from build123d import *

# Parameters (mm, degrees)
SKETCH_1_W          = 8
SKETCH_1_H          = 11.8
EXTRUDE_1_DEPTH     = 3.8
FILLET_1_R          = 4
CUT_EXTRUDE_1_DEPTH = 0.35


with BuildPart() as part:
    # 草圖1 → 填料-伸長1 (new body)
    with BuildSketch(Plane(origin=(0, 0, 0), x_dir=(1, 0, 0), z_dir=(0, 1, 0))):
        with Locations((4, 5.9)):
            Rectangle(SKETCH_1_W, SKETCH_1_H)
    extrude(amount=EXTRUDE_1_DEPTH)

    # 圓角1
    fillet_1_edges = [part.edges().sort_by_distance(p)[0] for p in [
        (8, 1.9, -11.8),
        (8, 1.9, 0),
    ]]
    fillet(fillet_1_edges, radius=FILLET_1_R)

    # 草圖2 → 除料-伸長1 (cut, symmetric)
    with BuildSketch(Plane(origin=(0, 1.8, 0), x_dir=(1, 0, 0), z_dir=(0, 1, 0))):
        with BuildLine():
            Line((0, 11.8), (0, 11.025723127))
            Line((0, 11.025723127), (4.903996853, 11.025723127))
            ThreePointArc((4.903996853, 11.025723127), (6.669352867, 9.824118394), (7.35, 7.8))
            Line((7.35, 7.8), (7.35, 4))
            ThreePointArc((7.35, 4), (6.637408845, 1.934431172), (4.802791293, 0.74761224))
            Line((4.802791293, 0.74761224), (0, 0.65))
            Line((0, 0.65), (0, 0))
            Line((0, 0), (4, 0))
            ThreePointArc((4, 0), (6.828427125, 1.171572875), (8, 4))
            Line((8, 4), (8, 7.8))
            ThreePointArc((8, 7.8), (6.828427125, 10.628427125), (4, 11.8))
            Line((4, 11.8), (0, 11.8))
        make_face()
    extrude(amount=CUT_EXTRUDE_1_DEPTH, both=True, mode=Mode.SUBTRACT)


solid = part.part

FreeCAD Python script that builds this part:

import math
import FreeCAD as App
import Part
import Sketcher
Q = App.Units.Quantity


def edges_at(feature, points):
    """Names of the edges that pass closest to the given points."""
    edges = feature.Shape.Edges
    near = lambda p: min(range(len(edges)), key=lambda i: edges[i].distToShape(Part.Vertex(*p))[0])
    return sorted({f"Edge{near(p) + 1}" for p in points})

doc = App.newDocument("Part")
body = doc.addObject("PartDesign::Body", "Body")

# Sketch on XZ plane
sketch1 = doc.addObject("Sketcher::SketchObject", "Sketch")
body.addObject(sketch1)
sketch1.AttachmentSupport = (doc.XZ_Plane, [""])
sketch1.MapMode = "FlatFace"
sketch1.addGeometry([
    Part.LineSegment(App.Vector(0, -12, 0), App.Vector(0, 0, 0)),
    Part.LineSegment(App.Vector(0, 0, 0), App.Vector(8, 0, 0)),
    Part.LineSegment(App.Vector(8, 0, 0), App.Vector(8, -12, 0)),
    Part.LineSegment(App.Vector(8, -12, 0), App.Vector(0, -12, 0)),
], False)
sketch1.addConstraint([
    Sketcher.Constraint("Coincident", 0, 2, 1, 1),
    Sketcher.Constraint("Coincident", 1, 2, 2, 1),
    Sketcher.Constraint("Coincident", 2, 2, 3, 1),
    Sketcher.Constraint("Coincident", 3, 2, 0, 1),
    Sketcher.Constraint("Vertical", 0),
    Sketcher.Constraint("Horizontal", 1),
    Sketcher.Constraint("Vertical", 2),
    Sketcher.Constraint("Horizontal", 3),
    Sketcher.Constraint("Coincident", 0, 2, -1, 1),
    Sketcher.Constraint("DistanceX", 1, 1, 1, 2, Q("8 mm")),
    Sketcher.Constraint("DistanceY", 0, 1, 0, 2, Q("11.8 mm")),
])
pad1 = doc.addObject("PartDesign::Pad", "Pad")
body.addObject(pad1)
pad1.Profile = sketch1
pad1.Length = 3.8
pad1.Reversed = True
doc.recompute()

fillet = doc.addObject("PartDesign::Fillet", "Fillet")
body.addObject(fillet)
fillet.Base = (pad1, edges_at(pad1, [(8, 1.9, -11.8), (8, 1.9, 0)]))
fillet.Radius = 4

# Sketch on XZ plane
sketch2 = doc.addObject("Sketcher::SketchObject", "Sketch001")
body.addObject(sketch2)
sketch2.AttachmentSupport = (doc.XZ_Plane, [""])
sketch2.MapMode = "FlatFace"
sketch2.AttachmentOffset = App.Placement(App.Vector(0, 0, -1.8), App.Rotation())
sketch2.addGeometry([
    Part.LineSegment(App.Vector(0, -11.8, 0), App.Vector(0, -11, 0)),  # 0
    Part.LineSegment(App.Vector(0, -11, 0), App.Vector(4.9, -11, 0)),  # 1
    Part.ArcOfCircle(Part.Circle(App.Vector(4, -7.8, 0), App.Vector(0, 0, 1), 3.4), math.radians(-74), math.radians(0)),  # 2
    Part.LineSegment(App.Vector(7.3, -7.8, 0), App.Vector(7.3, -4, 0)),  # 3
    Part.ArcOfCircle(Part.Circle(App.Vector(4, -4, 0), App.Vector(0, 0, 1), 3.4), math.radians(0), math.radians(76)),  # 4
    Part.LineSegment(App.Vector(4.8, -0.7, 0), App.Vector(0, -0.7, 0)),  # 5
    Part.LineSegment(App.Vector(0, -0.7, 0), App.Vector(0, 0, 0)),  # 6
    Part.LineSegment(App.Vector(0, 0, 0), App.Vector(4, 0, 0)),  # 7
    Part.ArcOfCircle(Part.Circle(App.Vector(4, -4, 0), App.Vector(0, 0, 1), 4), math.radians(0), math.radians(90)),  # 8
    Part.LineSegment(App.Vector(8, -4, 0), App.Vector(8, -7.8, 0)),  # 9
    Part.ArcOfCircle(Part.Circle(App.Vector(4, -7.8, 0), App.Vector(0, 0, 1), 4), math.radians(-90), math.radians(0)),  # 10
    Part.LineSegment(App.Vector(4, -11.8, 0), App.Vector(0, -11.8, 0)),  # 11
], False)
sketch2.addConstraint([
    Sketcher.Constraint("Coincident", 0, 2, 1, 1),
    Sketcher.Constraint("Coincident", 1, 2, 2, 1),
    Sketcher.Constraint("Tangent", 2, 2, 3, 1),
    Sketcher.Constraint("Tangent", 3, 2, 4, 1),
    Sketcher.Constraint("Coincident", 4, 2, 5, 1),
    Sketcher.Constraint("Coincident", 5, 2, 6, 1),
    Sketcher.Constraint("Coincident", 6, 2, 7, 1),
    Sketcher.Constraint("Tangent", 7, 2, 8, 2),
    Sketcher.Constraint("Tangent", 8, 1, 9, 1),
    Sketcher.Constraint("Tangent", 9, 2, 10, 2),
    Sketcher.Constraint("Tangent", 10, 1, 11, 1),
    Sketcher.Constraint("Coincident", 11, 2, 0, 1),
    Sketcher.Constraint("Vertical", 0),
    Sketcher.Constraint("Horizontal", 1),
    Sketcher.Constraint("Vertical", 3),
    Sketcher.Constraint("Vertical", 6),
    Sketcher.Constraint("Horizontal", 7),
    Sketcher.Constraint("Vertical", 9),
    Sketcher.Constraint("Horizontal", 11),
    Sketcher.Constraint("Coincident", 6, 2, -1, 1),
    Sketcher.Constraint("Coincident", 8, 3, 4, 3),
    Sketcher.Constraint("Coincident", 10, 3, 2, 3),
    Sketcher.Constraint("Equal", 2, 4),
    Sketcher.Constraint("PointOnObject", 0, 2, -2),
    Sketcher.Constraint("Radius", 8, Q("4 mm")),
    Sketcher.Constraint("DistanceX", 7, 1, 7, 2, Q("4 mm")),
    Sketcher.Constraint("Radius", 2, Q("3.35 mm")),
    Sketcher.Constraint("DistanceY", 3, 1, 3, 2, Q("3.8 mm")),
    Sketcher.Constraint("DistanceY", 6, 1, 6, 2, Q("0.65 mm")),
    Sketcher.Constraint("DistanceX", 1, 1, 1, 2, Q("4.903997 mm")),
    Sketcher.Constraint("DistanceX", -1, 1, 4, 2, Q("4.802791 mm")),
])
pocket1 = doc.addObject("PartDesign::Pocket", "Pocket")
body.addObject(pocket1)
pocket1.Profile = sketch2
pocket1.Length = 0.7
pocket1.Midplane = True

doc.recompute()
